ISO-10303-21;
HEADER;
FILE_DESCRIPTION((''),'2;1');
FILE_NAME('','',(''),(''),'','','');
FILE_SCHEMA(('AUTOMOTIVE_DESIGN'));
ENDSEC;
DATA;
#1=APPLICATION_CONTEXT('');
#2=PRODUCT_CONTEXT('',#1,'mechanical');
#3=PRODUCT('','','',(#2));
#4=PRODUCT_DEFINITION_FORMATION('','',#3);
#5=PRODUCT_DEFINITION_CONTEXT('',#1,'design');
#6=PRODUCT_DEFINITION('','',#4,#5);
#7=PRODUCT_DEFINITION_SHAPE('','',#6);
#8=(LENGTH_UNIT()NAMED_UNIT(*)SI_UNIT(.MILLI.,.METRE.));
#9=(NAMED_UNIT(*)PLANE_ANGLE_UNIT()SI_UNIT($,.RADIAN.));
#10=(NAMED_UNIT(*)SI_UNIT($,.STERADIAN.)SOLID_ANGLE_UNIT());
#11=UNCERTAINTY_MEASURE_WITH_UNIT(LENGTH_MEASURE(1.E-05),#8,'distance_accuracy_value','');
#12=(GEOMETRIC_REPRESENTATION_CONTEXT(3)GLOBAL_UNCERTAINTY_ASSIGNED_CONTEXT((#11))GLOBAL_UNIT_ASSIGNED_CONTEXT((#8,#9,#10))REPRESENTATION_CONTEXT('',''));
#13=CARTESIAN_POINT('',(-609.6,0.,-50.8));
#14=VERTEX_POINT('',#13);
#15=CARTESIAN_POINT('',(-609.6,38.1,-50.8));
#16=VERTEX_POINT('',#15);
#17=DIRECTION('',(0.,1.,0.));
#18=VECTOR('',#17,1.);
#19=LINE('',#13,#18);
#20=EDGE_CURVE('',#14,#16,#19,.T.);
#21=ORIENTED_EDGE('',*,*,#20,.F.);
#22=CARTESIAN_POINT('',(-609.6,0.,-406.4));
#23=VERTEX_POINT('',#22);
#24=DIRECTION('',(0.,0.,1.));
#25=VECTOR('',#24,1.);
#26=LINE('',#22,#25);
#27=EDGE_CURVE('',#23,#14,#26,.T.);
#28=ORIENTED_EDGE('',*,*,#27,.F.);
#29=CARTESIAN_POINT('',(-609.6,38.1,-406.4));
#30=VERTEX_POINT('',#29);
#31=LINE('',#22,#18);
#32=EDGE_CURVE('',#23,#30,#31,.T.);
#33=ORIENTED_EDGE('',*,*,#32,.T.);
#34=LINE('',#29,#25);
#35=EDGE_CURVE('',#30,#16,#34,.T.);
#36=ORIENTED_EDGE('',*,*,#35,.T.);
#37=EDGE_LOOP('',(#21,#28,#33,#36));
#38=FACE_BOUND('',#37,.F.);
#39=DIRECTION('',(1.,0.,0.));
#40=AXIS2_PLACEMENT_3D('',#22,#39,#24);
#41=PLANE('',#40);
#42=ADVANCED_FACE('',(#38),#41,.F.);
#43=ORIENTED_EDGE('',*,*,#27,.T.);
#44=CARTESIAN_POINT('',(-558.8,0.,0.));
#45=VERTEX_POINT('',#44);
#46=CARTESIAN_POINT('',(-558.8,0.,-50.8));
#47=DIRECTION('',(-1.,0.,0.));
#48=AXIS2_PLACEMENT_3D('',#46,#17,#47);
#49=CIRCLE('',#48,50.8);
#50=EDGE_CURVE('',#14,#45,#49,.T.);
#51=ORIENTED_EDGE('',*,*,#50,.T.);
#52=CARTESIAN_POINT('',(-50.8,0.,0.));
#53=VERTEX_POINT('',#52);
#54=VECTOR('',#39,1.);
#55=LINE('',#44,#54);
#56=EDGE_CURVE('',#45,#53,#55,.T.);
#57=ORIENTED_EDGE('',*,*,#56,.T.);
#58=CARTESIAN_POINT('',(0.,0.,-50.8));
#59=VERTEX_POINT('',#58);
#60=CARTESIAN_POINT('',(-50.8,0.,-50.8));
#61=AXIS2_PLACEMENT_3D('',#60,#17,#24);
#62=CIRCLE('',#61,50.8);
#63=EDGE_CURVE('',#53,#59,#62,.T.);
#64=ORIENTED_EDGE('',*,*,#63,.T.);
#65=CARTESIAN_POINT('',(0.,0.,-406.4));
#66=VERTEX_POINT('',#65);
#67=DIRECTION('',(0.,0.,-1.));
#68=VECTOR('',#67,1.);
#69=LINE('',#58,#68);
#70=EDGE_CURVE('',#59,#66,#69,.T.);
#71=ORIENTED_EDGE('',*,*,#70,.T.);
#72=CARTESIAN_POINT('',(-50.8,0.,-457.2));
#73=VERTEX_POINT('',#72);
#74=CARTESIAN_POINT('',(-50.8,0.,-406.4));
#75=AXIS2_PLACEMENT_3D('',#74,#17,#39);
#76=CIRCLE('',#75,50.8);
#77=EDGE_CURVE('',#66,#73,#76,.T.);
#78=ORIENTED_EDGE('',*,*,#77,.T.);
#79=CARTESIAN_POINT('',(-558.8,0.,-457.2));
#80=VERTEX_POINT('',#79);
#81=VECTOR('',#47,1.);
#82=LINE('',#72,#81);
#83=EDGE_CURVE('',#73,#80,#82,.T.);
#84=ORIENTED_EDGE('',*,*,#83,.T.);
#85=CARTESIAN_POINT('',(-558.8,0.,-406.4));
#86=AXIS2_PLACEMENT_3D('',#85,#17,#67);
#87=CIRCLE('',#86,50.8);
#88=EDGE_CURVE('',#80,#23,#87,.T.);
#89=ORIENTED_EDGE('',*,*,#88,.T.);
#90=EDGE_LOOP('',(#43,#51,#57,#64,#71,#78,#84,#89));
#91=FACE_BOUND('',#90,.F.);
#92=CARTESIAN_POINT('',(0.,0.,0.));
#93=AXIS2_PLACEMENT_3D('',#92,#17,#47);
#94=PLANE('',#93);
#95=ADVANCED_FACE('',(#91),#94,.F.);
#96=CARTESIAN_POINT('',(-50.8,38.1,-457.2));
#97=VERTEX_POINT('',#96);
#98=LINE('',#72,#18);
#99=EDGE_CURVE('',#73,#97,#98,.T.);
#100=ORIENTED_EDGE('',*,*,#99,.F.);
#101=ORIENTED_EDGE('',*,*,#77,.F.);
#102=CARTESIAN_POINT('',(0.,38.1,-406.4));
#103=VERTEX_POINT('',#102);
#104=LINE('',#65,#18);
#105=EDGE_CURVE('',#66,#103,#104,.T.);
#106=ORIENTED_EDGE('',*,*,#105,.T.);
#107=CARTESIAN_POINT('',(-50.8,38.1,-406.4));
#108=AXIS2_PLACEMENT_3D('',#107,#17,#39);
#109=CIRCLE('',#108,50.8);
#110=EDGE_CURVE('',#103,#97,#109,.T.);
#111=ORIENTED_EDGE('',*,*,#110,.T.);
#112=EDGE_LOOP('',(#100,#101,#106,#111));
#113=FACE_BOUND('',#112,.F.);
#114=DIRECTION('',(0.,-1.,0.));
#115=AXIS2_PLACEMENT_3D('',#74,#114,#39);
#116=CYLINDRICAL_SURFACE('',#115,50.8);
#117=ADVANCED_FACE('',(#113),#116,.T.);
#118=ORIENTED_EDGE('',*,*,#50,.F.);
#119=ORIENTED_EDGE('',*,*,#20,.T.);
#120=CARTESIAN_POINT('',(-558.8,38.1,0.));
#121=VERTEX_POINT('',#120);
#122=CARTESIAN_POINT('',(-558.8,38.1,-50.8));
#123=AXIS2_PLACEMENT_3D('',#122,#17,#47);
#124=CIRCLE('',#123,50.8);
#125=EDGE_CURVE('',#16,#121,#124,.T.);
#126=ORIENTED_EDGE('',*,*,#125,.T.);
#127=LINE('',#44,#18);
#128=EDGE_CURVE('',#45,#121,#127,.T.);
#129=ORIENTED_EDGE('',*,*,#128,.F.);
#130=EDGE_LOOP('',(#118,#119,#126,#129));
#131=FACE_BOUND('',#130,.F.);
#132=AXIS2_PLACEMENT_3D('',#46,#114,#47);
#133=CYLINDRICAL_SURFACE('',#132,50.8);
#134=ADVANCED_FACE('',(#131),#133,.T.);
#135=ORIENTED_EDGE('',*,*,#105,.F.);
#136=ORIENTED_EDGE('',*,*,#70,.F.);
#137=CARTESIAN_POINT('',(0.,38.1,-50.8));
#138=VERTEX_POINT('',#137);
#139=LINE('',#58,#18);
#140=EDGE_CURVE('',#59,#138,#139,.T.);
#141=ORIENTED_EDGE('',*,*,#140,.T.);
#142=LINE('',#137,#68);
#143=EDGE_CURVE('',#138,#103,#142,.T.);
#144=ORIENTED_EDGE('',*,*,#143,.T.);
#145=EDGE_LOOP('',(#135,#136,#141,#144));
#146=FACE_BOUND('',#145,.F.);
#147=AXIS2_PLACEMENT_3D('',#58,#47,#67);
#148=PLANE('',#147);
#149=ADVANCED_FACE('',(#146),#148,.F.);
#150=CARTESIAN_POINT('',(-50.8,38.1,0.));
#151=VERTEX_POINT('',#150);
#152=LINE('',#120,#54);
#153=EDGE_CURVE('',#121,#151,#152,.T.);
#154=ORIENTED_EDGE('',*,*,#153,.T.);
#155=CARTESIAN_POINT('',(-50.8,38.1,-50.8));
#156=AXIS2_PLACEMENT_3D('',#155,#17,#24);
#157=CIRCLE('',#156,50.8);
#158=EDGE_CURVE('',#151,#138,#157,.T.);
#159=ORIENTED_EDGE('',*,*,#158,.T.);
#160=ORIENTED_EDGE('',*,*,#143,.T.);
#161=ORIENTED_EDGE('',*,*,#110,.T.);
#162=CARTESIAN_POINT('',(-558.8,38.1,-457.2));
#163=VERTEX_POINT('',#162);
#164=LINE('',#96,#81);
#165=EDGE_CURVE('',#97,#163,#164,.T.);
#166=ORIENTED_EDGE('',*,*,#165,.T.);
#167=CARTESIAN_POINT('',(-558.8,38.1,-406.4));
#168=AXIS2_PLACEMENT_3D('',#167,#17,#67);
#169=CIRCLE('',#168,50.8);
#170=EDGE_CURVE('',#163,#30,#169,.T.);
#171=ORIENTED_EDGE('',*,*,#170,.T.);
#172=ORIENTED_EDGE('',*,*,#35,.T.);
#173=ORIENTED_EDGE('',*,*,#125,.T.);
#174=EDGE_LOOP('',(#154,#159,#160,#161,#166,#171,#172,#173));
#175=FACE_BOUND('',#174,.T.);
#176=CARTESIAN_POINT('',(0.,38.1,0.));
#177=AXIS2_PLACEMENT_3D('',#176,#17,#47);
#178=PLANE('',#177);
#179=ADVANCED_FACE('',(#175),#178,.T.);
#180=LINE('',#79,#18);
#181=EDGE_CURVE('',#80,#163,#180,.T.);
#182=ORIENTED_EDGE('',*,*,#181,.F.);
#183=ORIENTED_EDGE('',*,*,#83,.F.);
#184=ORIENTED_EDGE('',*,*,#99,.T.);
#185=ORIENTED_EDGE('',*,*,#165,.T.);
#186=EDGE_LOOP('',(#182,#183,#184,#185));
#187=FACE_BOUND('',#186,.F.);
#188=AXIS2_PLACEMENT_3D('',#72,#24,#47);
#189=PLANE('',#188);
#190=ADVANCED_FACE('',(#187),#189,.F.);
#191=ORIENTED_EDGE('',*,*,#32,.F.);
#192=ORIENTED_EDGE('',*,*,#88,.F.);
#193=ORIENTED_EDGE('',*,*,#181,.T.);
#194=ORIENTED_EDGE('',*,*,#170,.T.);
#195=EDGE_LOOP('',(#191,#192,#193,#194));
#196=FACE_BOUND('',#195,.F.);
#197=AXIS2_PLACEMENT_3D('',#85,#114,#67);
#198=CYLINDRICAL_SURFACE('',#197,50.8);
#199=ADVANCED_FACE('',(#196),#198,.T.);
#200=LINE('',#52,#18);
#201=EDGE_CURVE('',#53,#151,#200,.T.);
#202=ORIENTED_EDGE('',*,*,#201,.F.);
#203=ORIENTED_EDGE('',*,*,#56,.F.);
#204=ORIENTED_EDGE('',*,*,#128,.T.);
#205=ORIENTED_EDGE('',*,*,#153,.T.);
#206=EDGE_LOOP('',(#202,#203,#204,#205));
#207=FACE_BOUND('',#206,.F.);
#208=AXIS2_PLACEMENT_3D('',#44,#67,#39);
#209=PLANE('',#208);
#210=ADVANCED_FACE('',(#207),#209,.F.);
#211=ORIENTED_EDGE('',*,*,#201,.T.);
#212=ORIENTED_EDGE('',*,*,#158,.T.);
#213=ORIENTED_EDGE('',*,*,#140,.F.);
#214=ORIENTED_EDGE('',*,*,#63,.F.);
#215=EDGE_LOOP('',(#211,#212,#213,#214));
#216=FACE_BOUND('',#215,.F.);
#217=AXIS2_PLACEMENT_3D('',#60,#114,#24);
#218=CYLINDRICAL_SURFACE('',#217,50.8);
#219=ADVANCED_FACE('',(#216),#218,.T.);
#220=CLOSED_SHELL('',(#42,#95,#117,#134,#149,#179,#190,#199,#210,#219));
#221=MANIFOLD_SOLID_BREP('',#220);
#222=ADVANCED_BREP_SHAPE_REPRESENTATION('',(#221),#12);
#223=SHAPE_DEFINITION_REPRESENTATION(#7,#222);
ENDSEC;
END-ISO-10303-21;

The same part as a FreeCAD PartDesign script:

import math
import FreeCAD as App
import Part
import Sketcher
from FreeCAD import Vector
Q = App.Units.Quantity

doc = App.newDocument("Part")
params = doc.addObject("Spreadsheet::Sheet", "Params")
for row, (alias, value) in enumerate([
    ("sketch1_radius", "2 in"),
    ("pad1_length", "1.5 in"),
], start=1):
    params.set(f"A{row}", alias)
    params.set(f"B{row}", "=" + value)
    params.setAlias(f"B{row}", alias)

body = doc.addObject("PartDesign::Body", "Body")

sketch1 = body.newObject("Sketcher::SketchObject", "Sketch")
sketch1.AttachmentSupport = (doc.getObject("XZ_Plane"), [""])
sketch1.MapMode = "FlatFace"
sketch1.addGeometry([
    Part.ArcOfCircle(Part.Circle(Vector(-559, -51, 0), Vector(0, 0, 1), 51), math.radians(90), math.radians(180)),
    Part.LineSegment(Vector(-559, 0, 0), Vector(-51, 0, 0)),
    Part.ArcOfCircle(Part.Circle(Vector(-51, -51, 0), Vector(0, 0, 1), 51), math.radians(0), math.radians(90)),
    Part.LineSegment(Vector(0, -51, 0), Vector(0, -406, 0)),
    Part.ArcOfCircle(Part.Circle(Vector(-51, -406, 0), Vector(0, 0, 1), 51), math.radians(-90), math.radians(0)),
    Part.LineSegment(Vector(-51, -457, 0), Vector(-559, -457, 0)),
    Part.ArcOfCircle(Part.Circle(Vector(-559, -406, 0), Vector(0, 0, 1), 51), math.radians(180), math.radians(270)),
    Part.LineSegment(Vector(-610, -406, 0), Vector(-610, -51, 0)),
], False)
sketch1.addConstraint([
    Sketcher.Constraint("Tangent", 0, 1, 1, 1),
    Sketcher.Constraint("Tangent", 1, 2, 2, 2),
    Sketcher.Constraint("Tangent", 2, 1, 3, 1),
    Sketcher.Constraint("Tangent", 3, 2, 4, 2),
    Sketcher.Constraint("Tangent", 4, 1, 5, 1),
    Sketcher.Constraint("Tangent", 5, 2, 6, 2),
    Sketcher.Constraint("Tangent", 6, 1, 7, 1),
    Sketcher.Constraint("Tangent", 7, 2, 0, 2),
    Sketcher.Constraint("Horizontal", 1),
    Sketcher.Constraint("Vertical", 3),
    Sketcher.Constraint("Horizontal", 5),
    Sketcher.Constraint("Vertical", 7),
    Sketcher.Constraint("Equal", 0, 2),
    Sketcher.Constraint("Equal", 2, 4),
    Sketcher.Constraint("Equal", 4, 6),
    Sketcher.Constraint("PointOnObject", 0, 1, -1),
    Sketcher.Constraint("PointOnObject", 2, 1, -2),
    Sketcher.Constraint("Radius", 0, Q("2 in")),
    Sketcher.Constraint("DistanceY", 4, 1, -1, 1, Q("18 in")),
    Sketcher.Constraint("DistanceX", 6, 1, -1, 1, Q("24 in")),
])
sketch1.setExpression("Constraints[17]", "Params.sketch1_radius")
pad1 = body.newObject("PartDesign::Pad", "Pad")
pad1.Profile = sketch1
pad1.setExpression("Length", "Params.pad1_length")
pad1.Reversed = True

doc.recompute()
